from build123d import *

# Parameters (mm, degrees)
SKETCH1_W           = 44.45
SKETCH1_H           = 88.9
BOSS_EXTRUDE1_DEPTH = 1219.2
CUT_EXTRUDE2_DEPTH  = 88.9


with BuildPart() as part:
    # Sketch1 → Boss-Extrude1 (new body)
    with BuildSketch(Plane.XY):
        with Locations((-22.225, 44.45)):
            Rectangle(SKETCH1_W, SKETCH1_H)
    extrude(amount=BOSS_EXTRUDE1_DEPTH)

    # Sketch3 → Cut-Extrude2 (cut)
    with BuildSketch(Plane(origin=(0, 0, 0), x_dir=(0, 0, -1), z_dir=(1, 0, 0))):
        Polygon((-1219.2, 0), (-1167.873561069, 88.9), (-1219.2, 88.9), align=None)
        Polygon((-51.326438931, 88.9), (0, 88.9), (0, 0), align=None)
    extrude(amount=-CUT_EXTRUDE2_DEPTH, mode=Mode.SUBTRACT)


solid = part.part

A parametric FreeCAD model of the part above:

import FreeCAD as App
import Part
import Sketcher
Q = App.Units.Quantity


def add_polygon(sketch, points):
    """Adds a closed chain of lines whose ends are joined by coincident constraints."""
    first, n = sketch.GeometryCount, len(points)
    for a, b in zip(points, points[1:] + points[:1]):
        sketch.addGeometry(Part.LineSegment(App.Vector(*a, 0), App.Vector(*b, 0)), False)
    for i in range(n):
        sketch.addConstraint(Sketcher.Constraint("Coincident", first + i, 2, first + (i + 1) % n, 1))

doc = App.newDocument("Part")
params = doc.addObject("Spreadsheet::Sheet", "Params")
for row, (alias, value) in enumerate([
    ("sketch1_height", "3.5 in"),
    ("sketch1_width", "1.75 in"),
    ("pad1_length", "48 in"),
    ("sketch2_width", "3.5 in"),
    ("pocket1_length", "3.5 in"),
], start=1):
    params.set(f"A{row}", alias)
    params.set(f"B{row}", "=" + value)
    params.setAlias(f"B{row}", alias)

body = doc.addObject("PartDesign::Body", "Body")

sketch1 = doc.addObject("Sketcher::SketchObject", "Sketch")
body.addObject(sketch1)
sketch1.AttachmentSupport = (doc.XY_Plane, [""])
sketch1.MapMode = "FlatFace"
add_polygon(sketch1, [(-44.45, 88.9), (-44.45, 0), (0, 0), (0, 88.9)])
sketch1.addConstraint([
    Sketcher.Constraint("Vertical", 0),
    Sketcher.Constraint("Horizontal", 1),
    Sketcher.Constraint("Vertical", 2),
    Sketcher.Constraint("Horizontal", 3),
    Sketcher.Constraint("Coincident", 1, 2, -1, 1),
    Sketcher.Constraint("DistanceY", 0, 2, 0, 1, Q("3.5 in")),
    Sketcher.Constraint("DistanceX", 1, 1, 1, 2, Q("1.75 in")),
])
sketch1.setExpression("Constraints[9]", "Params.sketch1_height")
sketch1.setExpression("Constraints[10]", "Params.sketch1_width")
pad1 = doc.addObject("PartDesign::Pad", "Pad")
body.addObject(pad1)
pad1.Profile = sketch1
pad1.setExpression("Length", "Params.pad1_length")

sketch2 = doc.addObject("Sketcher::SketchObject", "Sketch001")
body.addObject(sketch2)
sketch2.AttachmentSupport = (doc.YZ_Plane, [""])
sketch2.MapMode = "FlatFace"
add_polygon(sketch2, [(0, 1219.2), (88.9, 1167.873561), (88.9, 1219.2)])
add_polygon(sketch2, [(88.9, 0), (88.9, 51.326439), (0, 0)])
sketch2.addConstraint([
    Sketcher.Constraint("Vertical", 1),
    Sketcher.Constraint("Horizontal", 2),
    Sketcher.Constraint("Vertical", 3),
    Sketcher.Constraint("Horizontal", 5),
    Sketcher.Constraint("Coincident", 4, 2, -1, 1),
    Sketcher.Constraint("PointOnObject", 2, 2, -2),
    Sketcher.Constraint("Vertical", 1, 2, 3, 2),
    Sketcher.Constraint("Equal", 1, 3),
    Sketcher.Constraint("DistanceX", 2, 2, 2, 1, Q("3.5 in")),
    Sketcher.Constraint("DistanceY", -1, 1, 1, 2, Q("48 in")),
    Sketcher.Constraint("Angle", 0, Q("-30 deg")),
])
sketch2.setExpression("Constraints[14]", "Params.sketch2_width")
pocket1 = doc.addObject("PartDesign::Pocket", "Pocket")
body.addObject(pocket1)
pocket1.Profile = sketch2
pocket1.setExpression("Length", "Params.pocket1_length")

doc.recompute()
